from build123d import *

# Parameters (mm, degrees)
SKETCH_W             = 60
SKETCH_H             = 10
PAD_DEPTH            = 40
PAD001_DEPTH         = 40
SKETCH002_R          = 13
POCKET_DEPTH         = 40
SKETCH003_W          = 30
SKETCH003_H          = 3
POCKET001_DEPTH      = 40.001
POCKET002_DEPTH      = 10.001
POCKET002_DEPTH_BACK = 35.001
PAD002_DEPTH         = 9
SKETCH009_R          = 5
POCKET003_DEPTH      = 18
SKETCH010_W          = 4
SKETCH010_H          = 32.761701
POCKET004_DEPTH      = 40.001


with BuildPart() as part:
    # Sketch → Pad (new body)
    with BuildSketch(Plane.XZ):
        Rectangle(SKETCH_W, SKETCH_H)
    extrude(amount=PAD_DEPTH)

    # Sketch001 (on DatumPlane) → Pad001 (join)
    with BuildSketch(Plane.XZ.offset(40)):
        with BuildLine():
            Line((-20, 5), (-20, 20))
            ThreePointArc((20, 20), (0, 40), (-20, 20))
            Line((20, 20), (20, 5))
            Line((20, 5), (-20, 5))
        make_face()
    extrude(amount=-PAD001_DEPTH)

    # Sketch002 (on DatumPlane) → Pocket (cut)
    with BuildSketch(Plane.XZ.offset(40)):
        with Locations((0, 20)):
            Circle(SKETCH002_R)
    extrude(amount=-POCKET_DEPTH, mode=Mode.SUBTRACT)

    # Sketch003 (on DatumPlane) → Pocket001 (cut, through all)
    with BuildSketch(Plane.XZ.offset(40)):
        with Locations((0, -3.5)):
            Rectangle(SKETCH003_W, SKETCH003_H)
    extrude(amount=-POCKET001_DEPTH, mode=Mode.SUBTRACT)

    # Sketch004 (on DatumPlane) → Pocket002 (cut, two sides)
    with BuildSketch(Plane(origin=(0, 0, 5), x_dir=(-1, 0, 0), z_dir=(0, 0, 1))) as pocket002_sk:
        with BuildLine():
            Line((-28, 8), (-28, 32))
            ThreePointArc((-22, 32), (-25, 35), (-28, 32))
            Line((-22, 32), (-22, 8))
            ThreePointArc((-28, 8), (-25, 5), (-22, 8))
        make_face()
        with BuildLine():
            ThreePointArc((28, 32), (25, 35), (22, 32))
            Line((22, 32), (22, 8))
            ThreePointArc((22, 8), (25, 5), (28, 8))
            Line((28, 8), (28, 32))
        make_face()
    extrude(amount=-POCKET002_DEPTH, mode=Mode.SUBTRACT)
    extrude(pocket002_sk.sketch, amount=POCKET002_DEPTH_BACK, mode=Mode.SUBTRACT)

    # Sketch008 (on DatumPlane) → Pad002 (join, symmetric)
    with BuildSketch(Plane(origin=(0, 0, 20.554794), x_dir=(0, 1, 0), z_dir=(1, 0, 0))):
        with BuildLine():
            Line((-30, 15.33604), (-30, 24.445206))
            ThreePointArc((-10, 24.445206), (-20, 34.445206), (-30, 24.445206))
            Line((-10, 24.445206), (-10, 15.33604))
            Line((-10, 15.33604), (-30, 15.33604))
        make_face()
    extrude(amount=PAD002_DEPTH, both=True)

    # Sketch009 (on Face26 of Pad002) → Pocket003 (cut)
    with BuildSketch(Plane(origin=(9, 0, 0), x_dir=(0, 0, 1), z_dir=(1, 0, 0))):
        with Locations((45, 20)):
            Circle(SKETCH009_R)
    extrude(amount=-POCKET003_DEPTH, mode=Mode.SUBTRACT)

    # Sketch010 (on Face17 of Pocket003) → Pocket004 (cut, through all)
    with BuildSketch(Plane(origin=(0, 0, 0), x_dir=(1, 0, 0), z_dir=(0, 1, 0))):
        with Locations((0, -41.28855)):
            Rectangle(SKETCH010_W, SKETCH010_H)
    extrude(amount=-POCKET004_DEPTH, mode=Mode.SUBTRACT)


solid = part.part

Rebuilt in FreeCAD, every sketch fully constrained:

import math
import FreeCAD as App
import Part
import Sketcher
from FreeCAD import Vector
Q = App.Units.Quantity


def add_polygon(sketch, points):
    """Adds a closed chain of lines whose ends are joined by coincident constraints."""
    first, n = sketch.GeometryCount, len(points)
    for a, b in zip(points, points[1:] + points[:1]):
        sketch.addGeometry(Part.LineSegment(App.Vector(*a, 0), App.Vector(*b, 0)), False)
    for i in range(n):
        sketch.addConstraint(Sketcher.Constraint("Coincident", first + i, 2, first + (i + 1) % n, 1))

doc = App.newDocument("Part")
params = doc.addObject("Spreadsheet::Sheet", "Params")
for row, (alias, value) in enumerate([
    ("sketch1_width", "60 mm"),
    ("sketch1_height", "10 mm"),
    ("pad1_length", "40 mm"),
    ("sketch2_radius", "20 mm"),
    ("sketch2_height", "15 mm"),
    ("pad2_length", "40 mm"),
    ("sketch3_diameter", "26 mm"),
    ("pocket1_length", "40 mm"),
    ("sketch4_width", "30 mm"),
    ("sketch4_height", "3 mm"),
    ("sketch5_radius", "3 mm"),
    ("sketch5_height", "24 mm"),
    ("sketch6_radius", "10 mm"),
    ("pad3_length", "18 mm"),
    ("sketch7_diameter", "10 mm"),
    ("pocket4_length", "18 mm"),
    ("sketch8_width", "4 mm"),
], start=1):
    params.set(f"A{row}", alias)
    params.set(f"B{row}", "=" + value)
    params.setAlias(f"B{row}", alias)

body = doc.addObject("PartDesign::Body", "Body")

sketch1 = body.newObject("Sketcher::SketchObject", "Sketch")
sketch1.AttachmentSupport = (doc.getObject("XZ_Plane"), [""])
sketch1.MapMode = "FlatFace"
add_polygon(sketch1, [(-30, 5), (-30, -5), (30, -5), (30, 5)])
sketch1.addConstraint([
    Sketcher.Constraint("Vertical", 0),
    Sketcher.Constraint("Horizontal", 1),
    Sketcher.Constraint("Vertical", 2),
    Sketcher.Constraint("Horizontal", 3),
    Sketcher.Constraint("Symmetric", 0, 2, 2, 2, -1, 1),
    Sketcher.Constraint("DistanceX", 1, 1, 1, 2, Q("60 mm")),
    Sketcher.Constraint("DistanceY", 0, 2, 0, 1, Q("10 mm")),
])
sketch1.setExpression("Constraints[9]", "Params.sketch1_width")
sketch1.setExpression("Constraints[10]", "Params.sketch1_height")
pad1 = body.newObject("PartDesign::Pad", "Pad")
pad1.Profile = sketch1
pad1.setExpression("Length", "Params.pad1_length")

sketch2 = body.newObject("Sketcher::SketchObject", "Sketch001")
sketch2.AttachmentSupport = (doc.getObject("XZ_Plane"), [""])
sketch2.MapMode = "FlatFace"
sketch2.AttachmentOffset = App.Placement(Vector(0, 0, 40), App.Rotation())
sketch2.addGeometry([
    Part.LineSegment(Vector(-20, 20, 0), Vector(-20, 5, 0)),
    Part.LineSegment(Vector(-20, 5, 0), Vector(20, 5, 0)),
    Part.LineSegment(Vector(20, 5, 0), Vector(20, 20, 0)),
    Part.ArcOfCircle(Part.Circle(Vector(0, 20, 0), Vector(0, 0, 1), 20), math.radians(0), math.radians(180)),
], False)
sketch2.addConstraint([
    Sketcher.Constraint("Coincident", 0, 2, 1, 1),
    Sketcher.Constraint("Coincident", 1, 2, 2, 1),
    Sketcher.Constraint("Tangent", 2, 2, 3, 1),
    Sketcher.Constraint("Tangent", 3, 2, 0, 1),
    Sketcher.Constraint("Vertical", 0),
    Sketcher.Constraint("Horizontal", 1),
    Sketcher.Constraint("Vertical", 2),
    Sketcher.Constraint("PointOnObject", 3, 3, -2),
    Sketcher.Constraint("Radius", 3, Q("20 mm")),
    Sketcher.Constraint("DistanceY", 0, 2, 0, 1, Q("15 mm")),
    Sketcher.Constraint("DistanceY", -1, 1, 3, 3, Q("20 mm")),
])
sketch2.setExpression("Constraints[8]", "Params.sketch2_radius")
sketch2.setExpression("Constraints[9]", "Params.sketch2_height")
pad2 = body.newObject("PartDesign::Pad", "Pad001")
pad2.Profile = sketch2
pad2.setExpression("Length", "Params.pad2_length")
pad2.Reversed = True

sketch3 = body.newObject("Sketcher::SketchObject", "Sketch002")
sketch3.AttachmentSupport = (doc.getObject("XZ_Plane"), [""])
sketch3.MapMode = "FlatFace"
sketch3.AttachmentOffset = App.Placement(Vector(0, 0, 40), App.Rotation())
sketch3.addGeometry(Part.Circle(Vector(0, 20, 0), Vector(0, 0, 1), 13), False)
sketch3.addConstraint([
    Sketcher.Constraint("PointOnObject", 0, 3, -2),
    Sketcher.Constraint("Diameter", 0, Q("26 mm")),
    Sketcher.Constraint("DistanceY", -1, 1, 0, 3, Q("20 mm")),
])
sketch3.setExpression("Constraints[1]", "Params.sketch3_diameter")
pocket1 = body.newObject("PartDesign::Pocket", "Pocket")
pocket1.Profile = sketch3
pocket1.setExpression("Length", "Params.pocket1_length")

sketch4 = body.newObject("Sketcher::SketchObject", "Sketch003")
sketch4.AttachmentSupport = (doc.getObject("XZ_Plane"), [""])
sketch4.MapMode = "FlatFace"
sketch4.AttachmentOffset = App.Placement(Vector(0, 0, 40), App.Rotation())
add_polygon(sketch4, [(-15, -2), (-15, -5), (15, -5), (15, -2)])
sketch4.addConstraint([
    Sketcher.Constraint("Vertical", 0),
    Sketcher.Constraint("Horizontal", 1),
    Sketcher.Constraint("Vertical", 2),
    Sketcher.Constraint("Horizontal", 3),
    Sketcher.Constraint("DistanceX", 1, 1, 1, 2, Q("30 mm")),
    Sketcher.Constraint("DistanceY", 0, 2, 0, 1, Q("3 mm")),
    Sketcher.Constraint("DistanceX", 0, 2, -1, 1, Q("15 mm")),
    Sketcher.Constraint("DistanceY", 0, 2, -1, 1, Q("5 mm")),
])
sketch4.setExpression("Constraints[8]", "Params.sketch4_width")
sketch4.setExpression("Constraints[9]", "Params.sketch4_height")
pocket2 = body.newObject("PartDesign::Pocket", "Pocket001")
pocket2.Profile = sketch4
pocket2.Type = "ThroughAll"

sketch5 = body.newObject("Sketcher::SketchObject", "Sketch004")
sketch5.AttachmentSupport = (doc.getObject("XY_Plane"), [""])
sketch5.MapMode = "FlatFace"
sketch5.AttachmentOffset = App.Placement(Vector(0, 0, 5), App.Rotation())
sketch5.addGeometry([
    Part.LineSegment(Vector(28, -32, 0), Vector(28, -8, 0)),
    Part.ArcOfCircle(Part.Circle(Vector(25, -8, 0), Vector(0, 0, 1), 3), math.radians(0), math.radians(180)),
    Part.LineSegment(Vector(22, -8, 0), Vector(22, -32, 0)),
    Part.ArcOfCircle(Part.Circle(Vector(25, -32, 0), Vector(0, 0, 1), 3), math.radians(180), math.radians(360)),
    Part.ArcOfCircle(Part.Circle(Vector(-25, -32, 0), Vector(0, 0, 1), 3), math.radians(180), math.radians(360)),
    Part.LineSegment(Vector(-22, -32, 0), Vector(-22, -8, 0)),
    Part.ArcOfCircle(Part.Circle(Vector(-25, -8, 0), Vector(0, 0, 1), 3), math.radians(0), math.radians(180)),
    Part.LineSegment(Vector(-28, -8, 0), Vector(-28, -32, 0)),
], False)
sketch5.addConstraint([
    Sketcher.Constraint("Tangent", 0, 2, 1, 1),
    Sketcher.Constraint("Tangent", 1, 2, 2, 1),
    Sketcher.Constraint("Tangent", 2, 2, 3, 1),
    Sketcher.Constraint("Tangent", 3, 2, 0, 1),
    Sketcher.Constraint("Tangent", 4, 2, 5, 1),
    Sketcher.Constraint("Tangent", 5, 2, 6, 1),
    Sketcher.Constraint("Tangent", 6, 2, 7, 1),
    Sketcher.Constraint("Tangent", 7, 2, 4, 1),
    Sketcher.Constraint("Vertical", 0),
    Sketcher.Constraint("Vertical", 2),
    Sketcher.Constraint("Vertical", 5),
    Sketcher.Constraint("Vertical", 7),
    Sketcher.Constraint("Equal", 3, 4),
    Sketcher.Constraint("Symmetric", 3, 3, 4, 3, -2),
    Sketcher.Constraint("Horizontal", 1, 3, 6, 3),
    Sketcher.Constraint("Radius", 1, Q("3 mm")),
    Sketcher.Constraint("DistanceY", 0, 1, 0, 2, Q("24 mm")),
    Sketcher.Constraint("DistanceX", -1, 1, 1, 3, Q("25 mm")),
    Sketcher.Constraint("DistanceY", 1, 3, -1, 1, Q("8 mm")),
])
sketch5.setExpression("Constraints[15]", "Params.sketch5_radius")
sketch5.setExpression("Constraints[16]", "Params.sketch5_height")
pocket3 = body.newObject("PartDesign::Pocket", "Pocket002")
pocket3.Profile = sketch5
pocket3.Type = "ThroughAll"
pocket3.Midplane = True

sketch6 = body.newObject("Sketcher::SketchObject", "Sketch005")
sketch6.AttachmentSupport = (doc.getObject("YZ_Plane"), [""])
sketch6.MapMode = "FlatFace"
sketch6.addGeometry([
    Part.LineSegment(Vector(-30, 45, 0), Vector(-30, 36, 0)),
    Part.LineSegment(Vector(-30, 36, 0), Vector(-10, 36, 0)),
    Part.LineSegment(Vector(-10, 36, 0), Vector(-10, 45, 0)),
    Part.ArcOfCircle(Part.Circle(Vector(-20, 45, 0), Vector(0, 0, 1), 10), math.radians(0), math.radians(180)),
], False)
sketch6.addConstraint([
    Sketcher.Constraint("Coincident", 0, 2, 1, 1),
    Sketcher.Constraint("Coincident", 1, 2, 2, 1),
    Sketcher.Constraint("Tangent", 2, 2, 3, 1),
    Sketcher.Constraint("Tangent", 3, 2, 0, 1),
    Sketcher.Constraint("Vertical", 0),
    Sketcher.Constraint("Horizontal", 1),
    Sketcher.Constraint("Vertical", 2),
    Sketcher.Constraint("Radius", 3, Q("10 mm")),
    Sketcher.Constraint("DistanceX", 3, 3, -1, 1, Q("20 mm")),
    Sketcher.Constraint("DistanceY", -1, 1, 3, 3, Q("45 mm")),
    Sketcher.Constraint("DistanceY", 0, 2, 0, 1, Q("9.109166 mm")),
])
sketch6.setExpression("Constraints[7]", "Params.sketch6_radius")
pad3 = body.newObject("PartDesign::Pad", "Pad002")
pad3.Profile = sketch6
pad3.setExpression("Length", "Params.pad3_length")
pad3.Midplane = True

sketch7 = body.newObject("Sketcher::SketchObject", "Sketch006")
sketch7.AttachmentSupport = (doc.getObject("YZ_Plane"), [""])
sketch7.MapMode = "FlatFace"
sketch7.AttachmentOffset = App.Placement(Vector(0, 0, 9), App.Rotation())
sketch7.addGeometry(Part.Circle(Vector(-20, 45, 0), Vector(0, 0, 1), 5), False)
sketch7.addConstraint([
    Sketcher.Constraint("Diameter", 0, Q("10 mm")),
    Sketcher.Constraint("DistanceX", 0, 3, -1, 1, Q("20 mm")),
    Sketcher.Constraint("DistanceY", -1, 1, 0, 3, Q("45 mm")),
])
sketch7.setExpression("Constraints[0]", "Params.sketch7_diameter")
pocket4 = body.newObject("PartDesign::Pocket", "Pocket003")
pocket4.Profile = sketch7
pocket4.setExpression("Length", "Params.pocket4_length")

sketch8 = body.newObject("Sketcher::SketchObject", "Sketch007")
sketch8.AttachmentSupport = (doc.getObject("XZ_Plane"), [""])
sketch8.MapMode = "FlatFace"
add_polygon(sketch8, [(-2, 24.9), (-2, 57.7), (2, 57.7), (2, 24.9)])
sketch8.addConstraint([
    Sketcher.Constraint("Vertical", 0),
    Sketcher.Constraint("Horizontal", 1),
    Sketcher.Constraint("Vertical", 2),
    Sketcher.Constraint("Horizontal", 3),
    Sketcher.Constraint("DistanceX", 1, 1, 1, 2, Q("4 mm")),
    Sketcher.Constraint("DistanceX", 0, 2, -1, 1, Q("2 mm")),
    Sketcher.Constraint("DistanceY", 0, 1, 0, 2, Q("32.761701 mm")),
    Sketcher.Constraint("DistanceY", -1, 1, 0, 2, Q("57.669401 mm")),
])
sketch8.setExpression("Constraints[8]", "Params.sketch8_width")
pocket5 = body.newObject("PartDesign::Pocket", "Pocket004")
pocket5.Profile = sketch8
pocket5.Type = "ThroughAll"
pocket5.Reversed = True

doc.recompute()
